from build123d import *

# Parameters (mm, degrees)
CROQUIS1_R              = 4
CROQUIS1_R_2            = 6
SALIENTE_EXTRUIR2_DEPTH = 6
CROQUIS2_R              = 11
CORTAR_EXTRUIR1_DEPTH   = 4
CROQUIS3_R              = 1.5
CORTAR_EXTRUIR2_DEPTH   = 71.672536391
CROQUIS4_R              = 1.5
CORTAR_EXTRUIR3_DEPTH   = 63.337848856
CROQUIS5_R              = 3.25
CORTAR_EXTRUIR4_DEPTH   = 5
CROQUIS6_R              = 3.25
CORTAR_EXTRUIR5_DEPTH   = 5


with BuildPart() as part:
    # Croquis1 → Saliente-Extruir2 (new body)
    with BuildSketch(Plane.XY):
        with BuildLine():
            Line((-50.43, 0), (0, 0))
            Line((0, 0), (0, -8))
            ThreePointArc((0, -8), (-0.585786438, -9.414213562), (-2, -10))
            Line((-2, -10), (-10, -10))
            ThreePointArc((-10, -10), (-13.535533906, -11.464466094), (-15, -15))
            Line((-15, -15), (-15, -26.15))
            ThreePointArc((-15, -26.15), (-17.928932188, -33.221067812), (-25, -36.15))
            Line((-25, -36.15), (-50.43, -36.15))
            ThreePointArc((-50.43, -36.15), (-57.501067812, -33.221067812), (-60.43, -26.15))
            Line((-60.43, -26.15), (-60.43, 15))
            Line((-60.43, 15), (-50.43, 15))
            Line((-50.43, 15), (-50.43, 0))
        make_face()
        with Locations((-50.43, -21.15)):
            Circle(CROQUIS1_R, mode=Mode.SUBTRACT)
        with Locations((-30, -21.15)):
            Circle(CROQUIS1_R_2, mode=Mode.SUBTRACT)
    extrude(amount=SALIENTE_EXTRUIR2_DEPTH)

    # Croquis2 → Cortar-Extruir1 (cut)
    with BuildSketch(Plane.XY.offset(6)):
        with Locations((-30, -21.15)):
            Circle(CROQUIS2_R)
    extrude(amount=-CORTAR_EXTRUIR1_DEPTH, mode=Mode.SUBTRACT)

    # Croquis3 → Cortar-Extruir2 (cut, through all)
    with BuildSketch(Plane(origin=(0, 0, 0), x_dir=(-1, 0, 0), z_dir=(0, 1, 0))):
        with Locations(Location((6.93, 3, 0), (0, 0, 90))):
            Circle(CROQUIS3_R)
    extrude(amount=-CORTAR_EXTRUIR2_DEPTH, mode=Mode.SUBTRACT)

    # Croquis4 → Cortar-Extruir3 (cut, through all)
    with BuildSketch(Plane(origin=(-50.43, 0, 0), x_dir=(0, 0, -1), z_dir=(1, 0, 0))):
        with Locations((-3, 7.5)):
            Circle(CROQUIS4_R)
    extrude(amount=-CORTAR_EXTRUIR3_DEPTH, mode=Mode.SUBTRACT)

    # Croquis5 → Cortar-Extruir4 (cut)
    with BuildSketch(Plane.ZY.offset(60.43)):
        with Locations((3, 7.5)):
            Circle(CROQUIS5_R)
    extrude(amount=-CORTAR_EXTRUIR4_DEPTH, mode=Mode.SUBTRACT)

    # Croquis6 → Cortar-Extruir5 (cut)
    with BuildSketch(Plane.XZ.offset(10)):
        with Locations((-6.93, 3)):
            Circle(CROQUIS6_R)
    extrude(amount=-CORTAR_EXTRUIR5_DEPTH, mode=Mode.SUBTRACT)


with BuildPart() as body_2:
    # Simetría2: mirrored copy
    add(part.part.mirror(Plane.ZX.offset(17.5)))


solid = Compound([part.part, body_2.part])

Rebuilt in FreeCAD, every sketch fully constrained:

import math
import FreeCAD as App
import Part
import Sketcher

V = App.Vector

doc = App.newDocument("Part")
body = doc.addObject("PartDesign::Body", "Body")

# Sketch on XY plane
sketch1 = body.newObject("Sketcher::SketchObject", "Sketch")
sketch1.AttachmentSupport = (doc.getObject("XY_Plane"), [""])
sketch1.MapMode = "FlatFace"
sketch1.addGeometry(Part.LineSegment(V(0, 0, 0), V(-50.43, 0, 0)), False)
sketch1.addGeometry(Part.LineSegment(V(-50.43, 0, 0), V(-50.43, 15, 0)), False)
sketch1.addGeometry(Part.LineSegment(V(-50.43, 15, 0), V(-60.43, 15, 0)), False)
sketch1.addGeometry(Part.LineSegment(V(-60.43, 15, 0), V(-60.43, -26.15, 0)), False)
sketch1.addGeometry(Part.ArcOfCircle(Part.Circle(V(-50.43, -26.15, 0), V(0, 0, 1), 10), math.radians(180), math.radians(270)), False)
sketch1.addGeometry(Part.LineSegment(V(-50.43, -36.15, 0), V(-25, -36.15, 0)), False)
sketch1.addGeometry(Part.ArcOfCircle(Part.Circle(V(-25, -26.15, 0), V(0, 0, 1), 10), math.radians(-90), math.radians(0)), False)
sketch1.addGeometry(Part.LineSegment(V(-15, -26.15, 0), V(-15, -15, 0)), False)
sketch1.addGeometry(Part.ArcOfCircle(Part.Circle(V(-10, -15, 0), V(0, 0, 1), 5), math.radians(90), math.radians(180)), False)
sketch1.addGeometry(Part.LineSegment(V(-10, -10, 0), V(-2, -10, 0)), False)
sketch1.addGeometry(Part.ArcOfCircle(Part.Circle(V(-2, -8, 0), V(0, 0, 1), 2), math.radians(-90), math.radians(0)), False)
sketch1.addGeometry(Part.LineSegment(V(0, -8, 0), V(0, 0, 0)), False)
sketch1.addGeometry(Part.Circle(V(-30, -21.15, 0), V(0, 0, 1), 6), False)
sketch1.addGeometry(Part.Circle(V(-50.43, -21.15, 0), V(0, 0, 1), 4), False)
sketch1.addConstraint(Sketcher.Constraint("Coincident", 0, 2, 1, 1))
sketch1.addConstraint(Sketcher.Constraint("Coincident", 1, 2, 2, 1))
sketch1.addConstraint(Sketcher.Constraint("Coincident", 2, 2, 3, 1))
sketch1.addConstraint(Sketcher.Constraint("Tangent", 3, 2, 4, 1))
sketch1.addConstraint(Sketcher.Constraint("Tangent", 4, 2, 5, 1))
sketch1.addConstraint(Sketcher.Constraint("Tangent", 5, 2, 6, 1))
sketch1.addConstraint(Sketcher.Constraint("Tangent", 6, 2, 7, 1))
sketch1.addConstraint(Sketcher.Constraint("Tangent", 7, 2, 8, 2))
sketch1.addConstraint(Sketcher.Constraint("Tangent", 8, 1, 9, 1))
sketch1.addConstraint(Sketcher.Constraint("Tangent", 9, 2, 10, 1))
sketch1.addConstraint(Sketcher.Constraint("Tangent", 10, 2, 11, 1))
sketch1.addConstraint(Sketcher.Constraint("Coincident", 11, 2, 0, 1))
sketch1.addConstraint(Sketcher.Constraint("Horizontal", 0))
sketch1.addConstraint(Sketcher.Constraint("Vertical", 1))
sketch1.addConstraint(Sketcher.Constraint("Horizontal", 2))
sketch1.addConstraint(Sketcher.Constraint("Vertical", 3))
sketch1.addConstraint(Sketcher.Constraint("Horizontal", 5))
sketch1.addConstraint(Sketcher.Constraint("Vertical", 7))
sketch1.addConstraint(Sketcher.Constraint("Horizontal", 9))
sketch1.addConstraint(Sketcher.Constraint("Vertical", 11))
sketch1.addConstraint(Sketcher.Constraint("Coincident", 11, 2, -1, 1))
sketch1.addConstraint(Sketcher.Constraint("Equal", 4, 6))
sketch1.addConstraint(Sketcher.Constraint("Horizontal", 12, 3, 13, 3))
sketch1.addConstraint(Sketcher.Constraint("Vertical", 4, 3, 13, 3))
sketch1.addConstraint(Sketcher.Constraint("Vertical", 13, 3, 0, 2))
sketch1.addConstraint(Sketcher.Constraint("Equal", 9, 11))
sketch1.addConstraint(Sketcher.Constraint("Diameter", 12, 12.0))
sketch1.addConstraint(Sketcher.Constraint("Diameter", 13, 8.0))
sketch1.addConstraint(Sketcher.Constraint("Radius", 4, 10.0))
sketch1.addConstraint(Sketcher.Constraint("Radius", 8, 5.0))
sketch1.addConstraint(Sketcher.Constraint("Radius", 10, 2.0))
sketch1.addConstraint(Sketcher.Constraint("DistanceX", 9, 1, 9, 2, 8.0))
sketch1.addConstraint(Sketcher.Constraint("DistanceY", 1, 1, 1, 2, 15.0))
sketch1.addConstraint(Sketcher.Constraint("DistanceX", 12, 3, -1, 1, 30.0))
sketch1.addConstraint(Sketcher.Constraint("DistanceY", 6, 3, 12, 3, 5.0))
sketch1.addConstraint(Sketcher.Constraint("DistanceX", 0, 2, 0, 1, 50.43))
sketch1.addConstraint(Sketcher.Constraint("DistanceY", 3, 2, 3, 1, 41.15))
pad1 = body.newObject("PartDesign::Pad", "Pad")
pad1.Profile = sketch1
pad1.Length = 6

# Sketch on XY plane
sketch2 = body.newObject("Sketcher::SketchObject", "Sketch001")
sketch2.AttachmentSupport = (doc.getObject("XY_Plane"), [""])
sketch2.MapMode = "FlatFace"
sketch2.AttachmentOffset = App.Placement(V(0, 0, 6), App.Rotation())
sketch2.addGeometry(Part.Circle(V(-30, -21.15, 0), V(0, 0, 1), 11), False)
sketch2.addConstraint(Sketcher.Constraint("Diameter", 0, 22.0))
sketch2.addConstraint(Sketcher.Constraint("DistanceX", 0, 3, -1, 1, 30.0))
sketch2.addConstraint(Sketcher.Constraint("DistanceY", 0, 3, -1, 1, 21.15))
pocket1 = body.newObject("PartDesign::Pocket", "Pocket")
pocket1.Profile = sketch2
pocket1.Length = 4

# Sketch on XZ plane
sketch3 = body.newObject("Sketcher::SketchObject", "Sketch002")
sketch3.AttachmentSupport = (doc.getObject("XZ_Plane"), [""])
sketch3.MapMode = "FlatFace"
sketch3.addGeometry(Part.Circle(V(-6.93, 3, 0), V(0, 0, 1), 1.5), False)
sketch3.addConstraint(Sketcher.Constraint("Diameter", 0, 3.0))
sketch3.addConstraint(Sketcher.Constraint("DistanceY", -1, 1, 0, 3, 3.0))
sketch3.addConstraint(Sketcher.Constraint("DistanceX", 0, 3, -1, 1, 6.93))
pocket2 = body.newObject("PartDesign::Pocket", "Pocket001")
pocket2.Profile = sketch3
pocket2.Type = "ThroughAll"
pocket2.Reversed = True

# Sketch on YZ plane
sketch4 = body.newObject("Sketcher::SketchObject", "Sketch003")
sketch4.AttachmentSupport = (doc.getObject("YZ_Plane"), [""])
sketch4.MapMode = "FlatFace"
sketch4.AttachmentOffset = App.Placement(V(0, 0, -50.43), App.Rotation())
sketch4.addGeometry(Part.Circle(V(7.5, 3, 0), V(0, 0, 1), 1.5), False)
sketch4.addConstraint(Sketcher.Constraint("Diameter", 0, 3.0))
sketch4.addConstraint(Sketcher.Constraint("DistanceY", -1, 1, 0, 3, 3.0))
sketch4.addConstraint(Sketcher.Constraint("DistanceX", -1, 1, 0, 3, 7.5))
pocket3 = body.newObject("PartDesign::Pocket", "Pocket002")
pocket3.Profile = sketch4
pocket3.Type = "ThroughAll"

# Sketch on YZ plane
sketch5 = body.newObject("Sketcher::SketchObject", "Sketch004")
sketch5.AttachmentSupport = (doc.getObject("YZ_Plane"), [""])
sketch5.MapMode = "FlatFace"
sketch5.AttachmentOffset = App.Placement(V(0, 0, -60.43), App.Rotation())
sketch5.addGeometry(Part.Circle(V(7.5, 3, 0), V(0, 0, 1), 3.25), False)
sketch5.addConstraint(Sketcher.Constraint("Diameter", 0, 6.5))
sketch5.addConstraint(Sketcher.Constraint("DistanceY", -1, 1, 0, 3, 3.0))
sketch5.addConstraint(Sketcher.Constraint("DistanceX", -1, 1, 0, 3, 7.5))
pocket4 = body.newObject("PartDesign::Pocket", "Pocket003")
pocket4.Profile = sketch5
pocket4.Length = 5
pocket4.Reversed = True

# Sketch on XZ plane
sketch6 = body.newObject("Sketcher::SketchObject", "Sketch005")
sketch6.AttachmentSupport = (doc.getObject("XZ_Plane"), [""])
sketch6.MapMode = "FlatFace"
sketch6.AttachmentOffset = App.Placement(V(0, 0, 10), App.Rotation())
sketch6.addGeometry(Part.Circle(V(-6.93, 3, 0), V(0, 0, 1), 3.25), False)
sketch6.addConstraint(Sketcher.Constraint("Diameter", 0, 6.5))
sketch6.addConstraint(Sketcher.Constraint("DistanceY", -1, 1, 0, 3, 3.0))
sketch6.addConstraint(Sketcher.Constraint("DistanceX", 0, 3, -1, 1, 6.93))
pocket5 = body.newObject("PartDesign::Pocket", "Pocket004")
pocket5.Profile = sketch6
pocket5.Length = 5
body2 = doc.addObject("PartDesign::Body", "Body001")
doc.recompute()

mirroring = doc.addObject("Part::Mirroring", "Mirroring")
mirroring.Source = body
mirroring.Base = V(0, 17.5, 0)
mirroring.Normal = V(0, 1, 0)
body2.BaseFeature = mirroring
doc.recompute()
mirroring.Visibility = False

doc.recompute()
